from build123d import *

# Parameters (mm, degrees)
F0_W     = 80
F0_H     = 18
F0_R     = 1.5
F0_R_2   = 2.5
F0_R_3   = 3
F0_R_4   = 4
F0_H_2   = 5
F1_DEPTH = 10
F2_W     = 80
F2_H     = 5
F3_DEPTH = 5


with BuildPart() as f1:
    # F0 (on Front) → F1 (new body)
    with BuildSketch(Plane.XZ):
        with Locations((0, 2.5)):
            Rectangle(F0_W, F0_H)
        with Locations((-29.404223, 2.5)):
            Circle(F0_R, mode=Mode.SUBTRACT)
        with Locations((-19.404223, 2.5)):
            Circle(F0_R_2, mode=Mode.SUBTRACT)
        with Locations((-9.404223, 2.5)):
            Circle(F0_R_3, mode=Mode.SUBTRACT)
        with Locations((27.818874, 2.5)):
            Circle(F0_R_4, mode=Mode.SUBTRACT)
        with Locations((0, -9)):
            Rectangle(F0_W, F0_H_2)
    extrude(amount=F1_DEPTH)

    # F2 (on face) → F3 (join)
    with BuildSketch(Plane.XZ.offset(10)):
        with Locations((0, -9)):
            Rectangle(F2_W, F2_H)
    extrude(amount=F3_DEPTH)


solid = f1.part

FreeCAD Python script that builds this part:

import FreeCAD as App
import Part
import Sketcher

doc = App.newDocument("Part")
body = doc.addObject("PartDesign::Body", "Body")

sketch1 = doc.addObject("Sketcher::SketchObject", "Sketch")
body.addObject(sketch1)
sketch1.AttachmentSupport = (doc.XZ_Plane, [""])
sketch1.MapMode = "FlatFace"
sketch1.addGeometry([
    Part.LineSegment(App.Vector(-40, 11.5, 0), App.Vector(-40, -11.5, 0)),
    Part.LineSegment(App.Vector(-40, -11.5, 0), App.Vector(40, -11.5, 0)),
    Part.LineSegment(App.Vector(40, -11.5, 0), App.Vector(40, 11.5, 0)),
    Part.LineSegment(App.Vector(40, 11.5, 0), App.Vector(-40, 11.5, 0)),
    Part.Circle(App.Vector(-29.4, 2.5, 0), App.Vector(0, 0, 1), 1.5),
    Part.Circle(App.Vector(-19.4, 2.5, 0), App.Vector(0, 0, 1), 2.5),
    Part.Circle(App.Vector(-9.4, 2.5, 0), App.Vector(0, 0, 1), 3),
    Part.Circle(App.Vector(27.8, 2.5, 0), App.Vector(0, 0, 1), 4),
], False)
sketch1.addConstraint([
    Sketcher.Constraint("Coincident", 0, 2, 1, 1),
    Sketcher.Constraint("Coincident", 1, 2, 2, 1),
    Sketcher.Constraint("Coincident", 2, 2, 3, 1),
    Sketcher.Constraint("Coincident", 3, 2, 0, 1),
    Sketcher.Constraint("Vertical", 0),
    Sketcher.Constraint("Horizontal", 1),
    Sketcher.Constraint("Vertical", 2),
    Sketcher.Constraint("Horizontal", 3),
    Sketcher.Constraint("Symmetric", 0, 2, 2, 2, -1, 1),
    Sketcher.Constraint("Horizontal", 4, 3, 5, 3),
    Sketcher.Constraint("Horizontal", 5, 3, 6, 3),
    Sketcher.Constraint("Horizontal", 6, 3, 7, 3),
    Sketcher.Constraint("Diameter", 4, 3.0),
    Sketcher.Constraint("Diameter", 5, 5.0),
    Sketcher.Constraint("Diameter", 6, 6.0),
    Sketcher.Constraint("Diameter", 7, 8.0),
    Sketcher.Constraint("DistanceX", 1, 1, 1, 2, 80.0),
    Sketcher.Constraint("DistanceY", 0, 2, 0, 1, 23.0),
    Sketcher.Constraint("DistanceX", 4, 3, 5, 3, 10.0),
    Sketcher.Constraint("DistanceX", 5, 3, 6, 3, 10.0),
    Sketcher.Constraint("DistanceY", 0, 2, 4, 3, 14.0),
    Sketcher.Constraint("DistanceX", 4, 3, -1, 1, 29.404223),
    Sketcher.Constraint("DistanceX", -1, 1, 7, 3, 27.818874),
])
pad1 = doc.addObject("PartDesign::Pad", "Pad")
body.addObject(pad1)
pad1.Profile = sketch1
pad1.Length = 10

sketch2 = doc.addObject("Sketcher::SketchObject", "Sketch001")
body.addObject(sketch2)
sketch2.AttachmentSupport = (doc.XZ_Plane, [""])
sketch2.MapMode = "FlatFace"
sketch2.AttachmentOffset = App.Placement(App.Vector(0, 0, 10), App.Rotation())
sketch2.addGeometry([
    Part.LineSegment(App.Vector(-40, -6, 0), App.Vector(-40, -12, 0)),
    Part.LineSegment(App.Vector(-40, -12, 0), App.Vector(40, -12, 0)),
    Part.LineSegment(App.Vector(40, -12, 0), App.Vector(40, -6, 0)),
    Part.LineSegment(App.Vector(40, -6, 0), App.Vector(-40, -6, 0)),
], False)
sketch2.addConstraint([
    Sketcher.Constraint("Coincident", 0, 2, 1, 1),
    Sketcher.Constraint("Coincident", 1, 2, 2, 1),
    Sketcher.Constraint("Coincident", 2, 2, 3, 1),
    Sketcher.Constraint("Coincident", 3, 2, 0, 1),
    Sketcher.Constraint("Vertical", 0),
    Sketcher.Constraint("Horizontal", 1),
    Sketcher.Constraint("Vertical", 2),
    Sketcher.Constraint("Horizontal", 3),
    Sketcher.Constraint("DistanceX", 1, 1, 1, 2, 80.0),
    Sketcher.Constraint("DistanceY", 0, 2, 0, 1, 5.0),
    Sketcher.Constraint("DistanceX", 0, 2, -1, 1, 40.0),
    Sketcher.Constraint("DistanceY", 0, 2, -1, 1, 11.5),
])
pad2 = doc.addObject("PartDesign::Pad", "Pad001")
body.addObject(pad2)
pad2.Profile = sketch2
pad2.Length = 5

doc.recompute()
